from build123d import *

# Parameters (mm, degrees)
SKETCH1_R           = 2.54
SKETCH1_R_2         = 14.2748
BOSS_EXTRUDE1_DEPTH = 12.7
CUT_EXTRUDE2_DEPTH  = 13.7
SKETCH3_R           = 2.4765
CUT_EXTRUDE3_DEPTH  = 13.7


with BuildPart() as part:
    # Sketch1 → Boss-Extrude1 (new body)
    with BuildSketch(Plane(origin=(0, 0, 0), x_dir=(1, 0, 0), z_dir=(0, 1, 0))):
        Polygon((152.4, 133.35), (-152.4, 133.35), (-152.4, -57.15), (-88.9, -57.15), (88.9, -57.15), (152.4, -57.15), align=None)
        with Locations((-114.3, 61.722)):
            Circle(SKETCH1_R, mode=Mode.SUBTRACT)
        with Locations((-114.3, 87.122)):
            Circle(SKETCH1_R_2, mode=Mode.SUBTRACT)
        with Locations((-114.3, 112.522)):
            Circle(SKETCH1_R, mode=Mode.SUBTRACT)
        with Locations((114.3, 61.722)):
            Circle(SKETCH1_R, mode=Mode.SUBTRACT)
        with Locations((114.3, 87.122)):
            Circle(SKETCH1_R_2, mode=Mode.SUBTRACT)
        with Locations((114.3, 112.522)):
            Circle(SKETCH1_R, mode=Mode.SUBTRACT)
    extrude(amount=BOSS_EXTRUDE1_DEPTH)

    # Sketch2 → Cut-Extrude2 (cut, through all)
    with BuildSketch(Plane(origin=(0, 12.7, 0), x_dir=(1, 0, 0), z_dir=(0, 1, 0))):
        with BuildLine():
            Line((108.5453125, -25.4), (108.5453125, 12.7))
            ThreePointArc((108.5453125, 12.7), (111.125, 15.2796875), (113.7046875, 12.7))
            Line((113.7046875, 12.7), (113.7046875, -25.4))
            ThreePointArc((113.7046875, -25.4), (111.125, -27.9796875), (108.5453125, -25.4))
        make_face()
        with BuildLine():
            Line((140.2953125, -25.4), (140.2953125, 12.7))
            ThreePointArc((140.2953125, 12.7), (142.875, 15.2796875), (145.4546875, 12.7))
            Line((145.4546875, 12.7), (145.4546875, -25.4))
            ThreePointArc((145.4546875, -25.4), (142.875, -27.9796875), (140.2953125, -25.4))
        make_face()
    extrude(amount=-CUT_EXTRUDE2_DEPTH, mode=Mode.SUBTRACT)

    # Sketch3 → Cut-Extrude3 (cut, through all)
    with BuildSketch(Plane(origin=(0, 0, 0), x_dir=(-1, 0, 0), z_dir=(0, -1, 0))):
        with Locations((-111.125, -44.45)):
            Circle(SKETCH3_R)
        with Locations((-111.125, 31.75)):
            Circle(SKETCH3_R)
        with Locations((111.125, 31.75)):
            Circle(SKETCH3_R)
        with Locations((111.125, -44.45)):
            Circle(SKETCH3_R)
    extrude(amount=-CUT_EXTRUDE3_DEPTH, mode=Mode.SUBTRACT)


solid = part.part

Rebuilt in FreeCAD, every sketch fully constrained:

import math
import FreeCAD as App
import Part
import Sketcher
Q = App.Units.Quantity

doc = App.newDocument("Part")
body = doc.addObject("PartDesign::Body", "Body")

# Sketch on XZ plane
sketch1 = doc.addObject("Sketcher::SketchObject", "Sketch")
body.addObject(sketch1)
sketch1.AttachmentSupport = (doc.XZ_Plane, [""])
sketch1.MapMode = "FlatFace"
sketch1.addGeometry(Part.LineSegment(App.Vector(152.4, -133.3, 0), App.Vector(-152.4, -133.3, 0)), False)
sketch1.addGeometry(Part.LineSegment(App.Vector(-152.4, -133.3, 0), App.Vector(-152.4, 57.1, 0)), False)
sketch1.addGeometry(Part.LineSegment(App.Vector(-152.4, 57.1, 0), App.Vector(152.4, 57.1, 0)), False)
sketch1.addGeometry(Part.LineSegment(App.Vector(152.4, 57.1, 0), App.Vector(152.4, -133.3, 0)), False)
sketch1.addGeometry(Part.Circle(App.Vector(-114.3, -61.7, 0), App.Vector(0, 0, 1), 2.5), False)
sketch1.addGeometry(Part.Circle(App.Vector(-114.3, -87.1, 0), App.Vector(0, 0, 1), 14.3), False)
sketch1.addGeometry(Part.Circle(App.Vector(114.3, -61.7, 0), App.Vector(0, 0, 1), 2.5), False)
sketch1.addGeometry(Part.Circle(App.Vector(114.3, -87.1, 0), App.Vector(0, 0, 1), 14.3), False)
sketch1.addGeometry(Part.Circle(App.Vector(-114.3, -112.5, 0), App.Vector(0, 0, 1), 2.5), False)
sketch1.addGeometry(Part.Circle(App.Vector(114.3, -112.5, 0), App.Vector(0, 0, 1), 2.5), False)
sketch1.addConstraint(Sketcher.Constraint("Coincident", 0, 2, 1, 1))
sketch1.addConstraint(Sketcher.Constraint("Coincident", 1, 2, 2, 1))
sketch1.addConstraint(Sketcher.Constraint("Coincident", 2, 2, 3, 1))
sketch1.addConstraint(Sketcher.Constraint("Coincident", 3, 2, 0, 1))
sketch1.addConstraint(Sketcher.Constraint("Horizontal", 0))
sketch1.addConstraint(Sketcher.Constraint("Vertical", 1))
sketch1.addConstraint(Sketcher.Constraint("Horizontal", 2))
sketch1.addConstraint(Sketcher.Constraint("Vertical", 3))
sketch1.addConstraint(Sketcher.Constraint("Equal", 4, 6))
sketch1.addConstraint(Sketcher.Constraint("Equal", 5, 7))
sketch1.addConstraint(Sketcher.Constraint("Equal", 6, 8))
sketch1.addConstraint(Sketcher.Constraint("Equal", 8, 9))
sketch1.addConstraint(Sketcher.Constraint("Symmetric", 4, 3, 6, 3, -2))
sketch1.addConstraint(Sketcher.Constraint("Symmetric", 5, 3, 7, 3, -2))
sketch1.addConstraint(Sketcher.Constraint("Symmetric", 8, 3, 9, 3, -2))
sketch1.addConstraint(Sketcher.Constraint("Vertical", 4, 3, 5, 3))
sketch1.addConstraint(Sketcher.Constraint("Vertical", 5, 3, 8, 3))
sketch1.addConstraint(Sketcher.Constraint("Diameter", 4, Q("0.2 in")))
sketch1.addConstraint(Sketcher.Constraint("DistanceX", 0, 2, 0, 1, Q("12 in")))
sketch1.addConstraint(Sketcher.Constraint("Diameter", 5, Q("1.124 in")))
sketch1.addConstraint(Sketcher.Constraint("DistanceY", 1, 1, 1, 2, Q("7.5 in")))
sketch1.addConstraint(Sketcher.Constraint("DistanceX", 0, 2, -1, 1, Q("6 in")))
sketch1.addConstraint(Sketcher.Constraint("DistanceY", 5, 3, 4, 3, Q("1 in")))
sketch1.addConstraint(Sketcher.Constraint("DistanceX", 4, 3, 6, 3, Q("9 in")))
sketch1.addConstraint(Sketcher.Constraint("DistanceY", 8, 3, 5, 3, Q("1 in")))
sketch1.addConstraint(Sketcher.Constraint("DistanceY", 4, 3, -1, 1, Q("2.43 in")))
sketch1.addConstraint(Sketcher.Constraint("DistanceY", 0, 2, -1, 1, Q("5.25 in")))
pad1 = doc.addObject("PartDesign::Pad", "Pad")
body.addObject(pad1)
pad1.Profile = sketch1
pad1.Length = Q("0.5 in")
pad1.Reversed = True

# Sketch on XZ plane
sketch2 = doc.addObject("Sketcher::SketchObject", "Sketch001")
body.addObject(sketch2)
sketch2.AttachmentSupport = (doc.XZ_Plane, [""])
sketch2.MapMode = "FlatFace"
sketch2.AttachmentOffset = App.Placement(App.Vector(0, 0, -0.5 * 25.4), App.Rotation())
sketch2.addGeometry(Part.LineSegment(App.Vector(108.5, -12.7, 0), App.Vector(108.5, 25.4, 0)), False)
sketch2.addGeometry(Part.ArcOfCircle(Part.Circle(App.Vector(111.1, 25.4, 0), App.Vector(0, 0, 1), 2.6), math.radians(0), math.radians(180)), False)
sketch2.addGeometry(Part.LineSegment(App.Vector(113.7, 25.4, 0), App.Vector(113.7, -12.7, 0)), False)
sketch2.addGeometry(Part.ArcOfCircle(Part.Circle(App.Vector(111.1, -12.7, 0), App.Vector(0, 0, 1), 2.6), math.radians(180), math.radians(360)), False)
sketch2.addGeometry(Part.LineSegment(App.Vector(140.3, -12.7, 0), App.Vector(140.3, 25.4, 0)), False)
sketch2.addGeometry(Part.ArcOfCircle(Part.Circle(App.Vector(142.9, 25.4, 0), App.Vector(0, 0, 1), 2.6), math.radians(0), math.radians(180)), False)
sketch2.addGeometry(Part.LineSegment(App.Vector(145.5, 25.4, 0), App.Vector(145.5, -12.7, 0)), False)
sketch2.addGeometry(Part.ArcOfCircle(Part.Circle(App.Vector(142.9, -12.7, 0), App.Vector(0, 0, 1), 2.6), math.radians(180), math.radians(360)), False)
sketch2.addConstraint(Sketcher.Constraint("Tangent", 0, 2, 1, 2))
sketch2.addConstraint(Sketcher.Constraint("Tangent", 1, 1, 2, 1))
sketch2.addConstraint(Sketcher.Constraint("Tangent", 2, 2, 3, 2))
sketch2.addConstraint(Sketcher.Constraint("Tangent", 3, 1, 0, 1))
sketch2.addConstraint(Sketcher.Constraint("Tangent", 4, 2, 5, 2))
sketch2.addConstraint(Sketcher.Constraint("Tangent", 5, 1, 6, 1))
sketch2.addConstraint(Sketcher.Constraint("Tangent", 6, 2, 7, 2))
sketch2.addConstraint(Sketcher.Constraint("Tangent", 7, 1, 4, 1))
sketch2.addConstraint(Sketcher.Constraint("Vertical", 0))
sketch2.addConstraint(Sketcher.Constraint("Vertical", 2))
sketch2.addConstraint(Sketcher.Constraint("Vertical", 4))
sketch2.addConstraint(Sketcher.Constraint("Vertical", 6))
sketch2.addConstraint(Sketcher.Constraint("Equal", 3, 5))
sketch2.addConstraint(Sketcher.Constraint("Horizontal", 1, 3, 5, 3))
sketch2.addConstraint(Sketcher.Constraint("Horizontal", 3, 3, 7, 3))
sketch2.addConstraint(Sketcher.Constraint("DistanceY", 0, 1, 0, 2, Q("1.5 in")))
sketch2.addConstraint(Sketcher.Constraint("DistanceY", -1, 1, 1, 3, Q("1 in")))
sketch2.addConstraint(Sketcher.Constraint("DistanceX", 1, 3, 5, 3, Q("1.25 in")))
sketch2.addConstraint(Sketcher.Constraint("DistanceX", -1, 1, 1, 3, Q("4.375 in")))
sketch2.addConstraint(Sketcher.Constraint("DistanceX", 0, 2, 1, 1, Q("0.203125 in")))
pocket1 = doc.addObject("PartDesign::Pocket", "Pocket")
body.addObject(pocket1)
pocket1.Profile = sketch2
pocket1.Type = "ThroughAll"
pocket1.Reversed = True

# Sketch on XZ plane
sketch3 = doc.addObject("Sketcher::SketchObject", "Sketch002")
body.addObject(sketch3)
sketch3.AttachmentSupport = (doc.XZ_Plane, [""])
sketch3.MapMode = "FlatFace"
sketch3.addGeometry(Part.Circle(App.Vector(111.1, 44.5, 0), App.Vector(0, 0, 1), 2.5), False)
sketch3.addGeometry(Part.Circle(App.Vector(111.1, -31.8, 0), App.Vector(0, 0, 1), 2.5), False)
sketch3.addGeometry(Part.Circle(App.Vector(-111.1, -31.8, 0), App.Vector(0, 0, 1), 2.5), False)
sketch3.addGeometry(Part.Circle(App.Vector(-111.1, 44.5, 0), App.Vector(0, 0, 1), 2.5), False)
sketch3.addConstraint(Sketcher.Constraint("Equal", 0, 1))
sketch3.addConstraint(Sketcher.Constraint("Equal", 1, 2))
sketch3.addConstraint(Sketcher.Constraint("Equal", 2, 3))
sketch3.addConstraint(Sketcher.Constraint("Symmetric", 1, 3, 2, 3, -2))
sketch3.addConstraint(Sketcher.Constraint("Symmetric", 0, 3, 3, 3, -2))
sketch3.addConstraint(Sketcher.Constraint("Vertical", 0, 3, 1, 3))
sketch3.addConstraint(Sketcher.Constraint("Diameter", 0, Q("0.195 in")))
sketch3.addConstraint(Sketcher.Constraint("DistanceY", 1, 3, 0, 3, Q("3 in")))
sketch3.addConstraint(Sketcher.Constraint("DistanceY", -1, 1, 0, 3, Q("1.75 in")))
sketch3.addConstraint(Sketcher.Constraint("DistanceX", 2, 3, 1, 3, Q("8.75 in")))
pocket2 = doc.addObject("PartDesign::Pocket", "Pocket001")
body.addObject(pocket2)
pocket2.Profile = sketch3
pocket2.Type = "ThroughAll"

doc.recompute()
